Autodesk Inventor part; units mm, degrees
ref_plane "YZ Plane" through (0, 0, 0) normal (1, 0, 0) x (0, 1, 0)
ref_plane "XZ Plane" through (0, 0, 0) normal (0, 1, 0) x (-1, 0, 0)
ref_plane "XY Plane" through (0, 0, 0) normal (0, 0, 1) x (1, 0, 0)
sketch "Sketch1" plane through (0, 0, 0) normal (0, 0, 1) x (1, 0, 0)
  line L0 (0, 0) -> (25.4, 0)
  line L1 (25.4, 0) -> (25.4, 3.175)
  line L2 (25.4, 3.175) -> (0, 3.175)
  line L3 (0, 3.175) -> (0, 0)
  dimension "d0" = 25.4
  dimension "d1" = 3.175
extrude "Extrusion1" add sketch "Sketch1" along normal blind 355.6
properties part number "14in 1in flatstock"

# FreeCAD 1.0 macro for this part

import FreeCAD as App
import Part
import Sketcher
from FreeCAD import Vector
Q = App.Units.Quantity


def add_polygon(sketch, points):
    """Adds a closed chain of lines whose ends are joined by coincident constraints."""
    first, n = sketch.GeometryCount, len(points)
    for a, b in zip(points, points[1:] + points[:1]):
        sketch.addGeometry(Part.LineSegment(App.Vector(*a, 0), App.Vector(*b, 0)), False)
    for i in range(n):
        sketch.addConstraint(Sketcher.Constraint("Coincident", first + i, 2, first + (i + 1) % n, 1))

doc = App.newDocument("Part")
body = doc.addObject("PartDesign::Body", "Body")

# Sketch on XY plane
sketch1 = body.newObject("Sketcher::SketchObject", "Sketch")
sketch1.AttachmentSupport = (doc.getObject("XY_Plane"), [""])
sketch1.MapMode = "FlatFace"
add_polygon(sketch1, [(0, 3.175), (0, 0), (25.4, 0), (25.4, 3.175)])  # lines 0-3
sketch1.addConstraint([
    Sketcher.Constraint("Vertical", 0),
    Sketcher.Constraint("Horizontal", 1),
    Sketcher.Constraint("Vertical", 2),
    Sketcher.Constraint("Horizontal", 3),
    Sketcher.Constraint("Coincident", 0, 2, -1, 1),
    Sketcher.Constraint("DistanceX", 1, 1, 1, 2, Q("1 in")),
    Sketcher.Constraint("DistanceY", 0, 2, 0, 1, Q("0.125 in")),
])
pad1 = body.newObject("PartDesign::Pad", "Pad")
pad1.Profile = sketch1
pad1.Length = Q("14 in")

doc.recompute()
